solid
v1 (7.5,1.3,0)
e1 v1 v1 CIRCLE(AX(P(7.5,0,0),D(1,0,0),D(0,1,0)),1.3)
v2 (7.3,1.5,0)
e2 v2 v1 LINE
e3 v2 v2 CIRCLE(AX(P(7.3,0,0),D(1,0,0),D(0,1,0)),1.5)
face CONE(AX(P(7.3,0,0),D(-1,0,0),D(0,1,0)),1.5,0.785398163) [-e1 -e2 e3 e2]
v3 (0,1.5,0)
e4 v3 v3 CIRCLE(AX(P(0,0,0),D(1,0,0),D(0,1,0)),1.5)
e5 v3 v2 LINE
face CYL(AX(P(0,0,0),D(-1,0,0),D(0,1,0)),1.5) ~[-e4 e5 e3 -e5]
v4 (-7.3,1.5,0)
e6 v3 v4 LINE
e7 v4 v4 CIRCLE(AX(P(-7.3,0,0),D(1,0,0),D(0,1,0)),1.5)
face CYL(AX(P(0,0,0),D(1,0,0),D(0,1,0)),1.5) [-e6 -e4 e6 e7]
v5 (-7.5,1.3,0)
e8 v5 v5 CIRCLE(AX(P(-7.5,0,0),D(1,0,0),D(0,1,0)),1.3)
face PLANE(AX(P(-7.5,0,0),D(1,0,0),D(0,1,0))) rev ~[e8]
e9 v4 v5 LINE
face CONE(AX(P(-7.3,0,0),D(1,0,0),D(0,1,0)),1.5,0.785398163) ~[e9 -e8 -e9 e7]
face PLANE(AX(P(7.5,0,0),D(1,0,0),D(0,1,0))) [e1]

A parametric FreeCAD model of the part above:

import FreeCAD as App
import Part
import Sketcher
from FreeCAD import Vector


def edges_at(feature, points):
    """Names of the edges that pass closest to the given points."""
    edges = feature.Shape.Edges
    near = lambda p: min(range(len(edges)), key=lambda i: edges[i].distToShape(Part.Vertex(*p))[0])
    return sorted({f"Edge{near(p) + 1}" for p in points})

doc = App.newDocument("Part")
body = doc.addObject("PartDesign::Body", "Body")

# Sketch on YZ plane
sketch1 = doc.addObject("Sketcher::SketchObject", "Sketch")
body.addObject(sketch1)
sketch1.AttachmentSupport = (doc.YZ_Plane, [""])
sketch1.MapMode = "FlatFace"
sketch1.addGeometry(Part.Circle(Vector(0, 0, 0), Vector(0, 0, 1), 1.5), False)
sketch1.addConstraint([
    Sketcher.Constraint("Coincident", 0, 3, -1, 1),
    Sketcher.Constraint("Diameter", 0, 3.0),
])
pad1 = doc.addObject("PartDesign::Pad", "Pad")
body.addObject(pad1)
pad1.Profile = sketch1
pad1.Length = 15
pad1.Midplane = True
doc.recompute()

chamfer = doc.addObject("PartDesign::Chamfer", "Chamfer")
body.addObject(chamfer)
chamfer.Base = (pad1, edges_at(pad1, [(7.5, -1.5, 0), (-7.5, -1.5, 0)]))
chamfer.Size = 0.2

doc.recompute()
